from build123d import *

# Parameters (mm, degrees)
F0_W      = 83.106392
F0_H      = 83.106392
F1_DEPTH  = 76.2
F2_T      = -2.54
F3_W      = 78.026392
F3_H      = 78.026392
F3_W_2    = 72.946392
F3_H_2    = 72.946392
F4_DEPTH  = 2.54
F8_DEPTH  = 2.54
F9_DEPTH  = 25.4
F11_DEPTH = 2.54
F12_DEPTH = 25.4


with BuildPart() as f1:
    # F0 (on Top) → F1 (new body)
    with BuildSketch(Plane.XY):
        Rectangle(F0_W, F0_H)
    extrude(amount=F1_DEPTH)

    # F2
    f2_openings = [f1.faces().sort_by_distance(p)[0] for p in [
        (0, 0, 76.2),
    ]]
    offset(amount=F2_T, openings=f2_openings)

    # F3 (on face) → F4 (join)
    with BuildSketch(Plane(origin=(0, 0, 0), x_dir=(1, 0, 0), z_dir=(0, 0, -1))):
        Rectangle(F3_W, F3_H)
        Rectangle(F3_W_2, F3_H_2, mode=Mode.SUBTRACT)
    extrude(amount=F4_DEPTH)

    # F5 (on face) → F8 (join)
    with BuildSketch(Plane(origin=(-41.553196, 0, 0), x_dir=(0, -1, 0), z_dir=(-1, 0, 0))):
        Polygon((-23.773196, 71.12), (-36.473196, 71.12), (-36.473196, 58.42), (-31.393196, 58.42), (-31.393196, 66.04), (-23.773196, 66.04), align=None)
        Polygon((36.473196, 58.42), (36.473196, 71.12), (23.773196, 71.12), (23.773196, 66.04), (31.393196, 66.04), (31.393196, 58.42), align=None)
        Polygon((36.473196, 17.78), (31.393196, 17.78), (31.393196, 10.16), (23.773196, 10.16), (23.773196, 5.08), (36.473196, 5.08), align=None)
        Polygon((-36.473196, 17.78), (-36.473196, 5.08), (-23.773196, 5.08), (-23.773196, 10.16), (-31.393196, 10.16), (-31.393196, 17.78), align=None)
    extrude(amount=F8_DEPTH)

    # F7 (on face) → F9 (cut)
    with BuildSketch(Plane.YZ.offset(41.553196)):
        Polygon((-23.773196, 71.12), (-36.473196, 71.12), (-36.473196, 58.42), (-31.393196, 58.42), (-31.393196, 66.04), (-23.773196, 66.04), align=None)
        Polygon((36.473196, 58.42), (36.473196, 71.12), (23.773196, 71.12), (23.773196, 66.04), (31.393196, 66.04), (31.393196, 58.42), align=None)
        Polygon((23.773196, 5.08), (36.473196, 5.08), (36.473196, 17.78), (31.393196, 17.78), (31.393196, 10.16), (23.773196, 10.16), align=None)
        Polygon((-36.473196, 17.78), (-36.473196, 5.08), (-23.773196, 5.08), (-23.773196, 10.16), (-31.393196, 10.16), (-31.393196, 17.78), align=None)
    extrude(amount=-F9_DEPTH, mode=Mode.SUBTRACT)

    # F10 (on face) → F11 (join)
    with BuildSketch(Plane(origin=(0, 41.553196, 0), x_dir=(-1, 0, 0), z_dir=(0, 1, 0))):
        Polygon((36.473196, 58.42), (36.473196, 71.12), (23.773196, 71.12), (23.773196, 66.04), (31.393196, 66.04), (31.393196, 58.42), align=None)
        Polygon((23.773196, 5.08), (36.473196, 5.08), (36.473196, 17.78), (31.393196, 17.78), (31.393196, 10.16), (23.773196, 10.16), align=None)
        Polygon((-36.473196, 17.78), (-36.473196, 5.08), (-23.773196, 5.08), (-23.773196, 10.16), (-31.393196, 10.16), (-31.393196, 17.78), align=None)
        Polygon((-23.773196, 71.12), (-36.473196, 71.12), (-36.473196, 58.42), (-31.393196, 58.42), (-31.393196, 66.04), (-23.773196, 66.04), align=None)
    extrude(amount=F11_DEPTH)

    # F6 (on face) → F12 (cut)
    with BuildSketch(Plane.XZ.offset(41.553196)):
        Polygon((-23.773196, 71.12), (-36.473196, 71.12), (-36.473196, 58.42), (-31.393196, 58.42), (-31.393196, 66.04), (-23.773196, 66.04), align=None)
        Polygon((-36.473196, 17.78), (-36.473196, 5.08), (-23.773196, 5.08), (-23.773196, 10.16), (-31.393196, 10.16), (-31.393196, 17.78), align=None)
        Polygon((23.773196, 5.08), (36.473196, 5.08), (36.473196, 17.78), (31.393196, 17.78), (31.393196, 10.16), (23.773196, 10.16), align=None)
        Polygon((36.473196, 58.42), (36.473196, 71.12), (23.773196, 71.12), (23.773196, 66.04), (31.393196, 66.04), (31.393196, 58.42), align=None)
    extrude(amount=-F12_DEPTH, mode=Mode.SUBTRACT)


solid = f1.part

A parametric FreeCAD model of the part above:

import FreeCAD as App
import Part
import Sketcher
Q = App.Units.Quantity


def faces_at(feature, points):
    """Names of the faces that lie closest to the given points."""
    faces = feature.Shape.Faces
    near = lambda p: min(range(len(faces)), key=lambda i: faces[i].distToShape(Part.Vertex(*p))[0])
    return sorted({f"Face{near(p) + 1}" for p in points})

doc = App.newDocument("Part")
body = doc.addObject("PartDesign::Body", "Body")

# Sketch on XY plane
sketch1 = doc.addObject("Sketcher::SketchObject", "Sketch")
body.addObject(sketch1)
sketch1.AttachmentSupport = (doc.XY_Plane, [""])
sketch1.MapMode = "FlatFace"
sketch1.addGeometry([
    Part.LineSegment(App.Vector(-42, 42, 0), App.Vector(-42, -42, 0)),
    Part.LineSegment(App.Vector(-42, -42, 0), App.Vector(42, -42, 0)),
    Part.LineSegment(App.Vector(42, -42, 0), App.Vector(42, 42, 0)),
    Part.LineSegment(App.Vector(42, 42, 0), App.Vector(-42, 42, 0)),
], False)
sketch1.addConstraint([
    Sketcher.Constraint("Coincident", 0, 2, 1, 1),
    Sketcher.Constraint("Coincident", 1, 2, 2, 1),
    Sketcher.Constraint("Coincident", 2, 2, 3, 1),
    Sketcher.Constraint("Coincident", 3, 2, 0, 1),
    Sketcher.Constraint("Vertical", 0),
    Sketcher.Constraint("Horizontal", 1),
    Sketcher.Constraint("Vertical", 2),
    Sketcher.Constraint("Horizontal", 3),
    Sketcher.Constraint("Symmetric", 0, 2, 2, 2, -1, 1),
    Sketcher.Constraint("Equal", 3, 0),
    Sketcher.Constraint("DistanceX", 1, 1, 1, 2, Q("83.106392 mm")),
])
pad1 = doc.addObject("PartDesign::Pad", "Pad")
body.addObject(pad1)
pad1.Profile = sketch1
pad1.Length = Q("3 in")
doc.recompute()

thickness = doc.addObject("PartDesign::Thickness", "Thickness")
body.addObject(thickness)
thickness.Base = (pad1, faces_at(pad1, [(0, 0, 76.2)]))
thickness.Value = Q("0.1 in")
thickness.Reversed = True
thickness.Join = "Arc"

# Sketch on XY plane
sketch2 = doc.addObject("Sketcher::SketchObject", "Sketch001")
body.addObject(sketch2)
sketch2.AttachmentSupport = (doc.XY_Plane, [""])
sketch2.MapMode = "FlatFace"
sketch2.addGeometry([
    Part.LineSegment(App.Vector(-39, -39, 0), App.Vector(-39, 39, 0)),  # 0
    Part.LineSegment(App.Vector(-39, 39, 0), App.Vector(39, 39, 0)),  # 1
    Part.LineSegment(App.Vector(39, 39, 0), App.Vector(39, -39, 0)),  # 2
    Part.LineSegment(App.Vector(39, -39, 0), App.Vector(-39, -39, 0)),  # 3
    Part.LineSegment(App.Vector(36, 36, 0), App.Vector(-36, 36, 0)),  # 4
    Part.LineSegment(App.Vector(-36, 36, 0), App.Vector(-36, -36, 0)),  # 5
    Part.LineSegment(App.Vector(-36, -36, 0), App.Vector(36, -36, 0)),  # 6
    Part.LineSegment(App.Vector(36, -36, 0), App.Vector(36, 36, 0)),  # 7
], False)
sketch2.addConstraint([
    Sketcher.Constraint("Coincident", 0, 2, 1, 1),
    Sketcher.Constraint("Coincident", 1, 2, 2, 1),
    Sketcher.Constraint("Coincident", 2, 2, 3, 1),
    Sketcher.Constraint("Coincident", 3, 2, 0, 1),
    Sketcher.Constraint("Coincident", 4, 2, 5, 1),
    Sketcher.Constraint("Coincident", 5, 2, 6, 1),
    Sketcher.Constraint("Coincident", 6, 2, 7, 1),
    Sketcher.Constraint("Coincident", 7, 2, 4, 1),
    Sketcher.Constraint("Vertical", 0),
    Sketcher.Constraint("Horizontal", 1),
    Sketcher.Constraint("Vertical", 2),
    Sketcher.Constraint("Horizontal", 3),
    Sketcher.Constraint("Horizontal", 4),
    Sketcher.Constraint("Vertical", 5),
    Sketcher.Constraint("Horizontal", 6),
    Sketcher.Constraint("Vertical", 7),
    Sketcher.Constraint("Symmetric", 0, 2, 2, 2, -1, 1),
    Sketcher.Constraint("Symmetric", 4, 2, 6, 2, -1, 1),
    Sketcher.Constraint("Equal", 3, 0),
    Sketcher.Constraint("Equal", 6, 5),
    Sketcher.Constraint("DistanceX", 0, 2, 4, 2, Q("0.1 in")),
    Sketcher.Constraint("DistanceX", 1, 1, 1, 2, Q("78.026392 mm")),
])
pad2 = doc.addObject("PartDesign::Pad", "Pad001")
body.addObject(pad2)
pad2.Profile = sketch2
pad2.Length = Q("0.1 in")
pad2.Reversed = True

# Sketch on YZ plane
sketch3 = doc.addObject("Sketcher::SketchObject", "Sketch002")
body.addObject(sketch3)
sketch3.AttachmentSupport = (doc.YZ_Plane, [""])
sketch3.MapMode = "FlatFace"
sketch3.AttachmentOffset = App.Placement(App.Vector(0, 0, -41.553196), App.Rotation())
sketch3.addGeometry([
    Part.LineSegment(App.Vector(24, 71, 0), App.Vector(36, 71, 0)),  # 0
    Part.LineSegment(App.Vector(36, 71, 0), App.Vector(36, 58, 0)),  # 1
    Part.LineSegment(App.Vector(36, 58, 0), App.Vector(31, 58, 0)),  # 2
    Part.LineSegment(App.Vector(31, 58, 0), App.Vector(31, 66, 0)),  # 3
    Part.LineSegment(App.Vector(31, 66, 0), App.Vector(24, 66, 0)),  # 4
    Part.LineSegment(App.Vector(24, 66, 0), App.Vector(24, 71, 0)),  # 5
    Part.LineSegment(App.Vector(-36, 58, 0), App.Vector(-36, 71, 0)),  # 6
    Part.LineSegment(App.Vector(-36, 71, 0), App.Vector(-24, 71, 0)),  # 7
    Part.LineSegment(App.Vector(-24, 71, 0), App.Vector(-24, 66, 0)),  # 8
    Part.LineSegment(App.Vector(-24, 66, 0), App.Vector(-31, 66, 0)),  # 9
    Part.LineSegment(App.Vector(-31, 66, 0), App.Vector(-31, 58, 0)),  # 10
    Part.LineSegment(App.Vector(-31, 58, 0), App.Vector(-36, 58, 0)),  # 11
    Part.LineSegment(App.Vector(-36, 18, 0), App.Vector(-31, 18, 0)),  # 12
    Part.LineSegment(App.Vector(-31, 18, 0), App.Vector(-31, 10, 0)),  # 13
    Part.LineSegment(App.Vector(-31, 10, 0), App.Vector(-24, 10, 0)),  # 14
    Part.LineSegment(App.Vector(-24, 10, 0), App.Vector(-24, 5, 0)),  # 15
    Part.LineSegment(App.Vector(-24, 5, 0), App.Vector(-36, 5, 0)),  # 16
    Part.LineSegment(App.Vector(-36, 5, 0), App.Vector(-36, 18, 0)),  # 17
    Part.LineSegment(App.Vector(36, 18, 0), App.Vector(36, 5, 0)),  # 18
    Part.LineSegment(App.Vector(36, 5, 0), App.Vector(24, 5, 0)),  # 19
    Part.LineSegment(App.Vector(24, 5, 0), App.Vector(24, 10, 0)),  # 20
    Part.LineSegment(App.Vector(24, 10, 0), App.Vector(31, 10, 0)),  # 21
    Part.LineSegment(App.Vector(31, 10, 0), App.Vector(31, 18, 0)),  # 22
    Part.LineSegment(App.Vector(31, 18, 0), App.Vector(36, 18, 0)),  # 23
], False)
sketch3.addConstraint([
    Sketcher.Constraint("Coincident", 0, 2, 1, 1),
    Sketcher.Constraint("Coincident", 1, 2, 2, 1),
    Sketcher.Constraint("Coincident", 2, 2, 3, 1),
    Sketcher.Constraint("Coincident", 3, 2, 4, 1),
    Sketcher.Constraint("Coincident", 4, 2, 5, 1),
    Sketcher.Constraint("Coincident", 5, 2, 0, 1),
    Sketcher.Constraint("Coincident", 6, 2, 7, 1),
    Sketcher.Constraint("Coincident", 7, 2, 8, 1),
    Sketcher.Constraint("Coincident", 8, 2, 9, 1),
    Sketcher.Constraint("Coincident", 9, 2, 10, 1),
    Sketcher.Constraint("Coincident", 10, 2, 11, 1),
    Sketcher.Constraint("Coincident", 11, 2, 6, 1),
    Sketcher.Constraint("Coincident", 12, 2, 13, 1),
    Sketcher.Constraint("Coincident", 13, 2, 14, 1),
    Sketcher.Constraint("Coincident", 14, 2, 15, 1),
    Sketcher.Constraint("Coincident", 15, 2, 16, 1),
    Sketcher.Constraint("Coincident", 16, 2, 17, 1),
    Sketcher.Constraint("Coincident", 17, 2, 12, 1),
    Sketcher.Constraint("Coincident", 18, 2, 19, 1),
    Sketcher.Constraint("Coincident", 19, 2, 20, 1),
    Sketcher.Constraint("Coincident", 20, 2, 21, 1),
    Sketcher.Constraint("Coincident", 21, 2, 22, 1),
    Sketcher.Constraint("Coincident", 22, 2, 23, 1),
    Sketcher.Constraint("Coincident", 23, 2, 18, 1),
    Sketcher.Constraint("Horizontal", 0),
    Sketcher.Constraint("Vertical", 1),
    Sketcher.Constraint("Horizontal", 2),
    Sketcher.Constraint("Vertical", 3),
    Sketcher.Constraint("Horizontal", 4),
    Sketcher.Constraint("Vertical", 5),
    Sketcher.Constraint("Vertical", 6),
    Sketcher.Constraint("Horizontal", 7),
    Sketcher.Constraint("Vertical", 8),
    Sketcher.Constraint("Horizontal", 9),
    Sketcher.Constraint("Vertical", 10),
    Sketcher.Constraint("Horizontal", 11),
    Sketcher.Constraint("Horizontal", 12),
    Sketcher.Constraint("Vertical", 13),
    Sketcher.Constraint("Horizontal", 14),
    Sketcher.Constraint("Vertical", 15),
    Sketcher.Constraint("Horizontal", 16),
    Sketcher.Constraint("Vertical", 17),
    Sketcher.Constraint("Vertical", 18),
    Sketcher.Constraint("Horizontal", 19),
    Sketcher.Constraint("Vertical", 20),
    Sketcher.Constraint("Horizontal", 21),
    Sketcher.Constraint("Vertical", 22),
    Sketcher.Constraint("Horizontal", 23),
    Sketcher.Constraint("Symmetric", 0, 2, 6, 2, -2),
    Sketcher.Constraint("Symmetric", 4, 2, 8, 2, -2),
    Sketcher.Constraint("Symmetric", 2, 2, 10, 2, -2),
    Sketcher.Constraint("Symmetric", 16, 2, 18, 2, -2),
    Sketcher.Constraint("Symmetric", 14, 2, 20, 2, -2),
    Sketcher.Constraint("Symmetric", 12, 2, 22, 2, -2),
    Sketcher.Constraint("Vertical", 10, 2, 12, 2),
    Sketcher.Constraint("Vertical", 8, 2, 14, 2),
    Sketcher.Constraint("Vertical", 11, 2, 16, 2),
    Sketcher.Constraint("Equal", 19, 1),
    Sketcher.Constraint("Equal", 21, 3),
    Sketcher.Constraint("Equal", 10, 13),
    Sketcher.Constraint("Equal", 8, 15),
    Sketcher.Constraint("DistanceX", 0, 1, 0, 2, Q("0.5 in")),
    Sketcher.Constraint("DistanceX", 2, 2, 2, 1, Q("0.2 in")),
    Sketcher.Constraint("DistanceY", -1, 1, 0, 2, Q("2.8 in")),
    Sketcher.Constraint("DistanceY", -1, 1, 12, 2, Q("0.7 in")),
    Sketcher.Constraint("DistanceX", 7, 2, 5, 2, Q("47.546392 mm")),
])
pad3 = doc.addObject("PartDesign::Pad", "Pad002")
body.addObject(pad3)
pad3.Profile = sketch3
pad3.Length = Q("0.1 in")
pad3.Reversed = True

# Sketch on YZ plane
sketch4 = doc.addObject("Sketcher::SketchObject", "Sketch003")
body.addObject(sketch4)
sketch4.AttachmentSupport = (doc.YZ_Plane, [""])
sketch4.MapMode = "FlatFace"
sketch4.AttachmentOffset = App.Placement(App.Vector(0, 0, 41.553196), App.Rotation())
sketch4.addGeometry([
    Part.LineSegment(App.Vector(-24, 71, 0), App.Vector(-36, 71, 0)),  # 0
    Part.LineSegment(App.Vector(-36, 71, 0), App.Vector(-36, 58, 0)),  # 1
    Part.LineSegment(App.Vector(-36, 58, 0), App.Vector(-31, 58, 0)),  # 2
    Part.LineSegment(App.Vector(-31, 58, 0), App.Vector(-31, 66, 0)),  # 3
    Part.LineSegment(App.Vector(-31, 66, 0), App.Vector(-24, 66, 0)),  # 4
    Part.LineSegment(App.Vector(-24, 66, 0), App.Vector(-24, 71, 0)),  # 5
    Part.LineSegment(App.Vector(36, 58, 0), App.Vector(36, 71, 0)),  # 6
    Part.LineSegment(App.Vector(36, 71, 0), App.Vector(24, 71, 0)),  # 7
    Part.LineSegment(App.Vector(24, 71, 0), App.Vector(24, 66, 0)),  # 8
    Part.LineSegment(App.Vector(24, 66, 0), App.Vector(31, 66, 0)),  # 9
    Part.LineSegment(App.Vector(31, 66, 0), App.Vector(31, 58, 0)),  # 10
    Part.LineSegment(App.Vector(31, 58, 0), App.Vector(36, 58, 0)),  # 11
    Part.LineSegment(App.Vector(24, 5, 0), App.Vector(36, 5, 0)),  # 12
    Part.LineSegment(App.Vector(36, 5, 0), App.Vector(36, 18, 0)),  # 13
    Part.LineSegment(App.Vector(36, 18, 0), App.Vector(31, 18, 0)),  # 14
    Part.LineSegment(App.Vector(31, 18, 0), App.Vector(31, 10, 0)),  # 15
    Part.LineSegment(App.Vector(31, 10, 0), App.Vector(24, 10, 0)),  # 16
    Part.LineSegment(App.Vector(24, 10, 0), App.Vector(24, 5, 0)),  # 17
    Part.LineSegment(App.Vector(-36, 18, 0), App.Vector(-36, 5, 0)),  # 18
    Part.LineSegment(App.Vector(-36, 5, 0), App.Vector(-24, 5, 0)),  # 19
    Part.LineSegment(App.Vector(-24, 5, 0), App.Vector(-24, 10, 0)),  # 20
    Part.LineSegment(App.Vector(-24, 10, 0), App.Vector(-31, 10, 0)),  # 21
    Part.LineSegment(App.Vector(-31, 10, 0), App.Vector(-31, 18, 0)),  # 22
    Part.LineSegment(App.Vector(-31, 18, 0), App.Vector(-36, 18, 0)),  # 23
], False)
sketch4.addConstraint([
    Sketcher.Constraint("Coincident", 0, 2, 1, 1),
    Sketcher.Constraint("Coincident", 1, 2, 2, 1),
    Sketcher.Constraint("Coincident", 2, 2, 3, 1),
    Sketcher.Constraint("Coincident", 3, 2, 4, 1),
    Sketcher.Constraint("Coincident", 4, 2, 5, 1),
    Sketcher.Constraint("Coincident", 5, 2, 0, 1),
    Sketcher.Constraint("Coincident", 6, 2, 7, 1),
    Sketcher.Constraint("Coincident", 7, 2, 8, 1),
    Sketcher.Constraint("Coincident", 8, 2, 9, 1),
    Sketcher.Constraint("Coincident", 9, 2, 10, 1),
    Sketcher.Constraint("Coincident", 10, 2, 11, 1),
    Sketcher.Constraint("Coincident", 11, 2, 6, 1),
    Sketcher.Constraint("Coincident", 12, 2, 13, 1),
    Sketcher.Constraint("Coincident", 13, 2, 14, 1),
    Sketcher.Constraint("Coincident", 14, 2, 15, 1),
    Sketcher.Constraint("Coincident", 15, 2, 16, 1),
    Sketcher.Constraint("Coincident", 16, 2, 17, 1),
    Sketcher.Constraint("Coincident", 17, 2, 12, 1),
    Sketcher.Constraint("Coincident", 18, 2, 19, 1),
    Sketcher.Constraint("Coincident", 19, 2, 20, 1),
    Sketcher.Constraint("Coincident", 20, 2, 21, 1),
    Sketcher.Constraint("Coincident", 21, 2, 22, 1),
    Sketcher.Constraint("Coincident", 22, 2, 23, 1),
    Sketcher.Constraint("Coincident", 23, 2, 18, 1),
    Sketcher.Constraint("Horizontal", 0),
    Sketcher.Constraint("Vertical", 1),
    Sketcher.Constraint("Horizontal", 2),
    Sketcher.Constraint("Vertical", 3),
    Sketcher.Constraint("Horizontal", 4),
    Sketcher.Constraint("Vertical", 5),
    Sketcher.Constraint("Vertical", 6),
    Sketcher.Constraint("Horizontal", 7),
    Sketcher.Constraint("Vertical", 8),
    Sketcher.Constraint("Horizontal", 9),
    Sketcher.Constraint("Vertical", 10),
    Sketcher.Constraint("Horizontal", 11),
    Sketcher.Constraint("Horizontal", 12),
    Sketcher.Constraint("Vertical", 13),
    Sketcher.Constraint("Horizontal", 14),
    Sketcher.Constraint("Vertical", 15),
    Sketcher.Constraint("Horizontal", 16),
    Sketcher.Constraint("Vertical", 17),
    Sketcher.Constraint("Vertical", 18),
    Sketcher.Constraint("Horizontal", 19),
    Sketcher.Constraint("Vertical", 20),
    Sketcher.Constraint("Horizontal", 21),
    Sketcher.Constraint("Vertical", 22),
    Sketcher.Constraint("Horizontal", 23),
    Sketcher.Constraint("Symmetric", 0, 2, 6, 2, -2),
    Sketcher.Constraint("Symmetric", 4, 2, 8, 2, -2),
    Sketcher.Constraint("Symmetric", 2, 2, 10, 2, -2),
    Sketcher.Constraint("Symmetric", 12, 2, 18, 2, -2),
    Sketcher.Constraint("Symmetric", 16, 2, 20, 2, -2),
    Sketcher.Constraint("Symmetric", 14, 2, 22, 2, -2),
    Sketcher.Constraint("Vertical", 11, 2, 12, 2),
    Sketcher.Constraint("Vertical", 10, 2, 14, 2),
    Sketcher.Constraint("Vertical", 8, 2, 16, 2),
    Sketcher.Constraint("Equal", 19, 1),
    Sketcher.Constraint("Equal", 21, 3),
    Sketcher.Constraint("Equal", 6, 13),
    Sketcher.Constraint("Equal", 10, 15),
    Sketcher.Constraint("DistanceX", 0, 2, 0, 1, Q("0.5 in")),
    Sketcher.Constraint("DistanceX", 2, 1, 2, 2, Q("0.2 in")),
    Sketcher.Constraint("DistanceY", -1, 1, 0, 2, Q("2.8 in")),
    Sketcher.Constraint("DistanceY", -1, 1, 12, 2, Q("0.2 in")),
    Sketcher.Constraint("DistanceX", 5, 2, 7, 2, Q("47.546392 mm")),
])
pocket1 = doc.addObject("PartDesign::Pocket", "Pocket")
body.addObject(pocket1)
pocket1.Profile = sketch4
pocket1.Length = Q("1 in")

# Sketch on XZ plane
sketch5 = doc.addObject("Sketcher::SketchObject", "Sketch004")
body.addObject(sketch5)
sketch5.AttachmentSupport = (doc.XZ_Plane, [""])
sketch5.MapMode = "FlatFace"
sketch5.AttachmentOffset = App.Placement(App.Vector(0, 0, -41.553196), App.Rotation())
sketch5.addGeometry([
    Part.LineSegment(App.Vector(-36, 58, 0), App.Vector(-36, 71, 0)),  # 0
    Part.LineSegment(App.Vector(-36, 71, 0), App.Vector(-24, 71, 0)),  # 1
    Part.LineSegment(App.Vector(-24, 71, 0), App.Vector(-24, 66, 0)),  # 2
    Part.LineSegment(App.Vector(-24, 66, 0), App.Vector(-31, 66, 0)),  # 3
    Part.LineSegment(App.Vector(-31, 66, 0), App.Vector(-31, 58, 0)),  # 4
    Part.LineSegment(App.Vector(-31, 58, 0), App.Vector(-36, 58, 0)),  # 5
    Part.LineSegment(App.Vector(-24, 5, 0), App.Vector(-36, 5, 0)),  # 6
    Part.LineSegment(App.Vector(-36, 5, 0), App.Vector(-36, 18, 0)),  # 7
    Part.LineSegment(App.Vector(-36, 18, 0), App.Vector(-31, 18, 0)),  # 8
    Part.LineSegment(App.Vector(-31, 18, 0), App.Vector(-31, 10, 0)),  # 9
    Part.LineSegment(App.Vector(-31, 10, 0), App.Vector(-24, 10, 0)),  # 10
    Part.LineSegment(App.Vector(-24, 10, 0), App.Vector(-24, 5, 0)),  # 11
    Part.LineSegment(App.Vector(36, 18, 0), App.Vector(36, 5, 0)),  # 12
    Part.LineSegment(App.Vector(36, 5, 0), App.Vector(24, 5, 0)),  # 13
    Part.LineSegment(App.Vector(24, 5, 0), App.Vector(24, 10, 0)),  # 14
    Part.LineSegment(App.Vector(24, 10, 0), App.Vector(31, 10, 0)),  # 15
    Part.LineSegment(App.Vector(31, 10, 0), App.Vector(31, 18, 0)),  # 16
    Part.LineSegment(App.Vector(31, 18, 0), App.Vector(36, 18, 0)),  # 17
    Part.LineSegment(App.Vector(24, 71, 0), App.Vector(36, 71, 0)),  # 18
    Part.LineSegment(App.Vector(36, 71, 0), App.Vector(36, 58, 0)),  # 19
    Part.LineSegment(App.Vector(36, 58, 0), App.Vector(31, 58, 0)),  # 20
    Part.LineSegment(App.Vector(31, 58, 0), App.Vector(31, 66, 0)),  # 21
    Part.LineSegment(App.Vector(31, 66, 0), App.Vector(24, 66, 0)),  # 22
    Part.LineSegment(App.Vector(24, 66, 0), App.Vector(24, 71, 0)),  # 23
], False)
sketch5.addConstraint([
    Sketcher.Constraint("Coincident", 0, 2, 1, 1),
    Sketcher.Constraint("Coincident", 1, 2, 2, 1),
    Sketcher.Constraint("Coincident", 2, 2, 3, 1),
    Sketcher.Constraint("Coincident", 3, 2, 4, 1),
    Sketcher.Constraint("Coincident", 4, 2, 5, 1),
    Sketcher.Constraint("Coincident", 5, 2, 0, 1),
    Sketcher.Constraint("Coincident", 6, 2, 7, 1),
    Sketcher.Constraint("Coincident", 7, 2, 8, 1),
    Sketcher.Constraint("Coincident", 8, 2, 9, 1),
    Sketcher.Constraint("Coincident", 9, 2, 10, 1),
    Sketcher.Constraint("Coincident", 10, 2, 11, 1),
    Sketcher.Constraint("Coincident", 11, 2, 6, 1),
    Sketcher.Constraint("Coincident", 12, 2, 13, 1),
    Sketcher.Constraint("Coincident", 13, 2, 14, 1),
    Sketcher.Constraint("Coincident", 14, 2, 15, 1),
    Sketcher.Constraint("Coincident", 15, 2, 16, 1),
    Sketcher.Constraint("Coincident", 16, 2, 17, 1),
    Sketcher.Constraint("Coincident", 17, 2, 12, 1),
    Sketcher.Constraint("Coincident", 18, 2, 19, 1),
    Sketcher.Constraint("Coincident", 19, 2, 20, 1),
    Sketcher.Constraint("Coincident", 20, 2, 21, 1),
    Sketcher.Constraint("Coincident", 21, 2, 22, 1),
    Sketcher.Constraint("Coincident", 22, 2, 23, 1),
    Sketcher.Constraint("Coincident", 23, 2, 18, 1),
    Sketcher.Constraint("Vertical", 0),
    Sketcher.Constraint("Horizontal", 1),
    Sketcher.Constraint("Vertical", 2),
    Sketcher.Constraint("Horizontal", 3),
    Sketcher.Constraint("Vertical", 4),
    Sketcher.Constraint("Horizontal", 5),
    Sketcher.Constraint("Horizontal", 6),
    Sketcher.Constraint("Vertical", 7),
    Sketcher.Constraint("Horizontal", 8),
    Sketcher.Constraint("Vertical", 9),
    Sketcher.Constraint("Horizontal", 10),
    Sketcher.Constraint("Vertical", 11),
    Sketcher.Constraint("Vertical", 12),
    Sketcher.Constraint("Horizontal", 13),
    Sketcher.Constraint("Vertical", 14),
    Sketcher.Constraint("Horizontal", 15),
    Sketcher.Constraint("Vertical", 16),
    Sketcher.Constraint("Horizontal", 17),
    Sketcher.Constraint("Horizontal", 18),
    Sketcher.Constraint("Vertical", 19),
    Sketcher.Constraint("Horizontal", 20),
    Sketcher.Constraint("Vertical", 21),
    Sketcher.Constraint("Horizontal", 22),
    Sketcher.Constraint("Vertical", 23),
    Sketcher.Constraint("Symmetric", 6, 2, 12, 2, -2),
    Sketcher.Constraint("Symmetric", 10, 2, 14, 2, -2),
    Sketcher.Constraint("Symmetric", 8, 2, 16, 2, -2),
    Sketcher.Constraint("Symmetric", 0, 2, 18, 2, -2),
    Sketcher.Constraint("Symmetric", 4, 2, 20, 2, -2),
    Sketcher.Constraint("Symmetric", 2, 2, 22, 2, -2),
    Sketcher.Constraint("Vertical", 5, 2, 6, 2),
    Sketcher.Constraint("Vertical", 4, 2, 8, 2),
    Sketcher.Constraint("Vertical", 2, 2, 10, 2),
    Sketcher.Constraint("Equal", 18, 0),
    Sketcher.Constraint("Equal", 20, 2),
    Sketcher.Constraint("Equal", 0, 7),
    Sketcher.Constraint("Equal", 4, 9),
    Sketcher.Constraint("DistanceX", 1, 1, 1, 2, Q("0.5 in")),
    Sketcher.Constraint("DistanceX", 3, 2, 3, 1, Q("0.3 in")),
    Sketcher.Constraint("DistanceY", -1, 1, 0, 2, Q("2.8 in")),
    Sketcher.Constraint("DistanceY", -1, 1, 6, 2, Q("0.2 in")),
    Sketcher.Constraint("DistanceX", 11, 2, 13, 2, Q("47.546392 mm")),
])
pad4 = doc.addObject("PartDesign::Pad", "Pad003")
body.addObject(pad4)
pad4.Profile = sketch5
pad4.Length = Q("0.1 in")
pad4.Reversed = True

# Sketch on XZ plane
sketch6 = doc.addObject("Sketcher::SketchObject", "Sketch005")
body.addObject(sketch6)
sketch6.AttachmentSupport = (doc.XZ_Plane, [""])
sketch6.MapMode = "FlatFace"
sketch6.AttachmentOffset = App.Placement(App.Vector(0, 0, 41.553196), App.Rotation())
sketch6.addGeometry([
    Part.LineSegment(App.Vector(-24, 71, 0), App.Vector(-36, 71, 0)),  # 0
    Part.LineSegment(App.Vector(-36, 71, 0), App.Vector(-36, 58, 0)),  # 1
    Part.LineSegment(App.Vector(-36, 58, 0), App.Vector(-31, 58, 0)),  # 2
    Part.LineSegment(App.Vector(-31, 58, 0), App.Vector(-31, 66, 0)),  # 3
    Part.LineSegment(App.Vector(-31, 66, 0), App.Vector(-24, 66, 0)),  # 4
    Part.LineSegment(App.Vector(-24, 66, 0), App.Vector(-24, 71, 0)),  # 5
    Part.LineSegment(App.Vector(-36, 18, 0), App.Vector(-36, 5, 0)),  # 6
    Part.LineSegment(App.Vector(-36, 5, 0), App.Vector(-24, 5, 0)),  # 7
    Part.LineSegment(App.Vector(-24, 5, 0), App.Vector(-24, 10, 0)),  # 8
    Part.LineSegment(App.Vector(-24, 10, 0), App.Vector(-31, 10, 0)),  # 9
    Part.LineSegment(App.Vector(-31, 10, 0), App.Vector(-31, 18, 0)),  # 10
    Part.LineSegment(App.Vector(-31, 18, 0), App.Vector(-36, 18, 0)),  # 11
    Part.LineSegment(App.Vector(24, 5, 0), App.Vector(36, 5, 0)),  # 12
    Part.LineSegment(App.Vector(36, 5, 0), App.Vector(36, 18, 0)),  # 13
    Part.LineSegment(App.Vector(36, 18, 0), App.Vector(31, 18, 0)),  # 14
    Part.LineSegment(App.Vector(31, 18, 0), App.Vector(31, 10, 0)),  # 15
    Part.LineSegment(App.Vector(31, 10, 0), App.Vector(24, 10, 0)),  # 16
    Part.LineSegment(App.Vector(24, 10, 0), App.Vector(24, 5, 0)),  # 17
    Part.LineSegment(App.Vector(36, 58, 0), App.Vector(36, 71, 0)),  # 18
    Part.LineSegment(App.Vector(36, 71, 0), App.Vector(24, 71, 0)),  # 19
    Part.LineSegment(App.Vector(24, 71, 0), App.Vector(24, 66, 0)),  # 20
    Part.LineSegment(App.Vector(24, 66, 0), App.Vector(31, 66, 0)),  # 21
    Part.LineSegment(App.Vector(31, 66, 0), App.Vector(31, 58, 0)),  # 22
    Part.LineSegment(App.Vector(31, 58, 0), App.Vector(36, 58, 0)),  # 23
], False)
sketch6.addConstraint([
    Sketcher.Constraint("Coincident", 0, 2, 1, 1),
    Sketcher.Constraint("Coincident", 1, 2, 2, 1),
    Sketcher.Constraint("Coincident", 2, 2, 3, 1),
    Sketcher.Constraint("Coincident", 3, 2, 4, 1),
    Sketcher.Constraint("Coincident", 4, 2, 5, 1),
    Sketcher.Constraint("Coincident", 5, 2, 0, 1),
    Sketcher.Constraint("Coincident", 6, 2, 7, 1),
    Sketcher.Constraint("Coincident", 7, 2, 8, 1),
    Sketcher.Constraint("Coincident", 8, 2, 9, 1),
    Sketcher.Constraint("Coincident", 9, 2, 10, 1),
    Sketcher.Constraint("Coincident", 10, 2, 11, 1),
    Sketcher.Constraint("Coincident", 11, 2, 6, 1),
    Sketcher.Constraint("Coincident", 12, 2, 13, 1),
    Sketcher.Constraint("Coincident", 13, 2, 14, 1),
    Sketcher.Constraint("Coincident", 14, 2, 15, 1),
    Sketcher.Constraint("Coincident", 15, 2, 16, 1),
    Sketcher.Constraint("Coincident", 16, 2, 17, 1),
    Sketcher.Constraint("Coincident", 17, 2, 12, 1),
    Sketcher.Constraint("Coincident", 18, 2, 19, 1),
    Sketcher.Constraint("Coincident", 19, 2, 20, 1),
    Sketcher.Constraint("Coincident", 20, 2, 21, 1),
    Sketcher.Constraint("Coincident", 21, 2, 22, 1),
    Sketcher.Constraint("Coincident", 22, 2, 23, 1),
    Sketcher.Constraint("Coincident", 23, 2, 18, 1),
    Sketcher.Constraint("Horizontal", 0),
    Sketcher.Constraint("Vertical", 1),
    Sketcher.Constraint("Horizontal", 2),
    Sketcher.Constraint("Vertical", 3),
    Sketcher.Constraint("Horizontal", 4),
    Sketcher.Constraint("Vertical", 5),
    Sketcher.Constraint("Vertical", 6),
    Sketcher.Constraint("Horizontal", 7),
    Sketcher.Constraint("Vertical", 8),
    Sketcher.Constraint("Horizontal", 9),
    Sketcher.Constraint("Vertical", 10),
    Sketcher.Constraint("Horizontal", 11),
    Sketcher.Constraint("Horizontal", 12),
    Sketcher.Constraint("Vertical", 13),
    Sketcher.Constraint("Horizontal", 14),
    Sketcher.Constraint("Vertical", 15),
    Sketcher.Constraint("Horizontal", 16),
    Sketcher.Constraint("Vertical", 17),
    Sketcher.Constraint("Vertical", 18),
    Sketcher.Constraint("Horizontal", 19),
    Sketcher.Constraint("Vertical", 20),
    Sketcher.Constraint("Horizontal", 21),
    Sketcher.Constraint("Vertical", 22),
    Sketcher.Constraint("Horizontal", 23),
    Sketcher.Constraint("Symmetric", 6, 2, 12, 2, -2),
    Sketcher.Constraint("Symmetric", 10, 2, 14, 2, -2),
    Sketcher.Constraint("Symmetric", 8, 2, 16, 2, -2),
    Sketcher.Constraint("Symmetric", 0, 2, 18, 2, -2),
    Sketcher.Constraint("Symmetric", 4, 2, 20, 2, -2),
    Sketcher.Constraint("Symmetric", 2, 2, 22, 2, -2),
    Sketcher.Constraint("Vertical", 1, 2, 6, 2),
    Sketcher.Constraint("Vertical", 5, 2, 7, 2),
    Sketcher.Constraint("Vertical", 3, 2, 9, 2),
    Sketcher.Constraint("Equal", 19, 1),
    Sketcher.Constraint("Equal", 21, 3),
    Sketcher.Constraint("Equal", 1, 6),
    Sketcher.Constraint("Equal", 5, 8),
    Sketcher.Constraint("DistanceX", 0, 2, 0, 1, Q("0.5 in")),
    Sketcher.Constraint("DistanceX", 2, 1, 2, 2, Q("0.2 in")),
    Sketcher.Constraint("DistanceY", -1, 1, 0, 2, Q("2.8 in")),
    Sketcher.Constraint("DistanceY", -1, 1, 6, 2, Q("0.2 in")),
    Sketcher.Constraint("DistanceX", 8, 2, 16, 2, Q("47.546392 mm")),
])
pocket2 = doc.addObject("PartDesign::Pocket", "Pocket001")
body.addObject(pocket2)
pocket2.Profile = sketch6
pocket2.Length = Q("1 in")

doc.recompute()
